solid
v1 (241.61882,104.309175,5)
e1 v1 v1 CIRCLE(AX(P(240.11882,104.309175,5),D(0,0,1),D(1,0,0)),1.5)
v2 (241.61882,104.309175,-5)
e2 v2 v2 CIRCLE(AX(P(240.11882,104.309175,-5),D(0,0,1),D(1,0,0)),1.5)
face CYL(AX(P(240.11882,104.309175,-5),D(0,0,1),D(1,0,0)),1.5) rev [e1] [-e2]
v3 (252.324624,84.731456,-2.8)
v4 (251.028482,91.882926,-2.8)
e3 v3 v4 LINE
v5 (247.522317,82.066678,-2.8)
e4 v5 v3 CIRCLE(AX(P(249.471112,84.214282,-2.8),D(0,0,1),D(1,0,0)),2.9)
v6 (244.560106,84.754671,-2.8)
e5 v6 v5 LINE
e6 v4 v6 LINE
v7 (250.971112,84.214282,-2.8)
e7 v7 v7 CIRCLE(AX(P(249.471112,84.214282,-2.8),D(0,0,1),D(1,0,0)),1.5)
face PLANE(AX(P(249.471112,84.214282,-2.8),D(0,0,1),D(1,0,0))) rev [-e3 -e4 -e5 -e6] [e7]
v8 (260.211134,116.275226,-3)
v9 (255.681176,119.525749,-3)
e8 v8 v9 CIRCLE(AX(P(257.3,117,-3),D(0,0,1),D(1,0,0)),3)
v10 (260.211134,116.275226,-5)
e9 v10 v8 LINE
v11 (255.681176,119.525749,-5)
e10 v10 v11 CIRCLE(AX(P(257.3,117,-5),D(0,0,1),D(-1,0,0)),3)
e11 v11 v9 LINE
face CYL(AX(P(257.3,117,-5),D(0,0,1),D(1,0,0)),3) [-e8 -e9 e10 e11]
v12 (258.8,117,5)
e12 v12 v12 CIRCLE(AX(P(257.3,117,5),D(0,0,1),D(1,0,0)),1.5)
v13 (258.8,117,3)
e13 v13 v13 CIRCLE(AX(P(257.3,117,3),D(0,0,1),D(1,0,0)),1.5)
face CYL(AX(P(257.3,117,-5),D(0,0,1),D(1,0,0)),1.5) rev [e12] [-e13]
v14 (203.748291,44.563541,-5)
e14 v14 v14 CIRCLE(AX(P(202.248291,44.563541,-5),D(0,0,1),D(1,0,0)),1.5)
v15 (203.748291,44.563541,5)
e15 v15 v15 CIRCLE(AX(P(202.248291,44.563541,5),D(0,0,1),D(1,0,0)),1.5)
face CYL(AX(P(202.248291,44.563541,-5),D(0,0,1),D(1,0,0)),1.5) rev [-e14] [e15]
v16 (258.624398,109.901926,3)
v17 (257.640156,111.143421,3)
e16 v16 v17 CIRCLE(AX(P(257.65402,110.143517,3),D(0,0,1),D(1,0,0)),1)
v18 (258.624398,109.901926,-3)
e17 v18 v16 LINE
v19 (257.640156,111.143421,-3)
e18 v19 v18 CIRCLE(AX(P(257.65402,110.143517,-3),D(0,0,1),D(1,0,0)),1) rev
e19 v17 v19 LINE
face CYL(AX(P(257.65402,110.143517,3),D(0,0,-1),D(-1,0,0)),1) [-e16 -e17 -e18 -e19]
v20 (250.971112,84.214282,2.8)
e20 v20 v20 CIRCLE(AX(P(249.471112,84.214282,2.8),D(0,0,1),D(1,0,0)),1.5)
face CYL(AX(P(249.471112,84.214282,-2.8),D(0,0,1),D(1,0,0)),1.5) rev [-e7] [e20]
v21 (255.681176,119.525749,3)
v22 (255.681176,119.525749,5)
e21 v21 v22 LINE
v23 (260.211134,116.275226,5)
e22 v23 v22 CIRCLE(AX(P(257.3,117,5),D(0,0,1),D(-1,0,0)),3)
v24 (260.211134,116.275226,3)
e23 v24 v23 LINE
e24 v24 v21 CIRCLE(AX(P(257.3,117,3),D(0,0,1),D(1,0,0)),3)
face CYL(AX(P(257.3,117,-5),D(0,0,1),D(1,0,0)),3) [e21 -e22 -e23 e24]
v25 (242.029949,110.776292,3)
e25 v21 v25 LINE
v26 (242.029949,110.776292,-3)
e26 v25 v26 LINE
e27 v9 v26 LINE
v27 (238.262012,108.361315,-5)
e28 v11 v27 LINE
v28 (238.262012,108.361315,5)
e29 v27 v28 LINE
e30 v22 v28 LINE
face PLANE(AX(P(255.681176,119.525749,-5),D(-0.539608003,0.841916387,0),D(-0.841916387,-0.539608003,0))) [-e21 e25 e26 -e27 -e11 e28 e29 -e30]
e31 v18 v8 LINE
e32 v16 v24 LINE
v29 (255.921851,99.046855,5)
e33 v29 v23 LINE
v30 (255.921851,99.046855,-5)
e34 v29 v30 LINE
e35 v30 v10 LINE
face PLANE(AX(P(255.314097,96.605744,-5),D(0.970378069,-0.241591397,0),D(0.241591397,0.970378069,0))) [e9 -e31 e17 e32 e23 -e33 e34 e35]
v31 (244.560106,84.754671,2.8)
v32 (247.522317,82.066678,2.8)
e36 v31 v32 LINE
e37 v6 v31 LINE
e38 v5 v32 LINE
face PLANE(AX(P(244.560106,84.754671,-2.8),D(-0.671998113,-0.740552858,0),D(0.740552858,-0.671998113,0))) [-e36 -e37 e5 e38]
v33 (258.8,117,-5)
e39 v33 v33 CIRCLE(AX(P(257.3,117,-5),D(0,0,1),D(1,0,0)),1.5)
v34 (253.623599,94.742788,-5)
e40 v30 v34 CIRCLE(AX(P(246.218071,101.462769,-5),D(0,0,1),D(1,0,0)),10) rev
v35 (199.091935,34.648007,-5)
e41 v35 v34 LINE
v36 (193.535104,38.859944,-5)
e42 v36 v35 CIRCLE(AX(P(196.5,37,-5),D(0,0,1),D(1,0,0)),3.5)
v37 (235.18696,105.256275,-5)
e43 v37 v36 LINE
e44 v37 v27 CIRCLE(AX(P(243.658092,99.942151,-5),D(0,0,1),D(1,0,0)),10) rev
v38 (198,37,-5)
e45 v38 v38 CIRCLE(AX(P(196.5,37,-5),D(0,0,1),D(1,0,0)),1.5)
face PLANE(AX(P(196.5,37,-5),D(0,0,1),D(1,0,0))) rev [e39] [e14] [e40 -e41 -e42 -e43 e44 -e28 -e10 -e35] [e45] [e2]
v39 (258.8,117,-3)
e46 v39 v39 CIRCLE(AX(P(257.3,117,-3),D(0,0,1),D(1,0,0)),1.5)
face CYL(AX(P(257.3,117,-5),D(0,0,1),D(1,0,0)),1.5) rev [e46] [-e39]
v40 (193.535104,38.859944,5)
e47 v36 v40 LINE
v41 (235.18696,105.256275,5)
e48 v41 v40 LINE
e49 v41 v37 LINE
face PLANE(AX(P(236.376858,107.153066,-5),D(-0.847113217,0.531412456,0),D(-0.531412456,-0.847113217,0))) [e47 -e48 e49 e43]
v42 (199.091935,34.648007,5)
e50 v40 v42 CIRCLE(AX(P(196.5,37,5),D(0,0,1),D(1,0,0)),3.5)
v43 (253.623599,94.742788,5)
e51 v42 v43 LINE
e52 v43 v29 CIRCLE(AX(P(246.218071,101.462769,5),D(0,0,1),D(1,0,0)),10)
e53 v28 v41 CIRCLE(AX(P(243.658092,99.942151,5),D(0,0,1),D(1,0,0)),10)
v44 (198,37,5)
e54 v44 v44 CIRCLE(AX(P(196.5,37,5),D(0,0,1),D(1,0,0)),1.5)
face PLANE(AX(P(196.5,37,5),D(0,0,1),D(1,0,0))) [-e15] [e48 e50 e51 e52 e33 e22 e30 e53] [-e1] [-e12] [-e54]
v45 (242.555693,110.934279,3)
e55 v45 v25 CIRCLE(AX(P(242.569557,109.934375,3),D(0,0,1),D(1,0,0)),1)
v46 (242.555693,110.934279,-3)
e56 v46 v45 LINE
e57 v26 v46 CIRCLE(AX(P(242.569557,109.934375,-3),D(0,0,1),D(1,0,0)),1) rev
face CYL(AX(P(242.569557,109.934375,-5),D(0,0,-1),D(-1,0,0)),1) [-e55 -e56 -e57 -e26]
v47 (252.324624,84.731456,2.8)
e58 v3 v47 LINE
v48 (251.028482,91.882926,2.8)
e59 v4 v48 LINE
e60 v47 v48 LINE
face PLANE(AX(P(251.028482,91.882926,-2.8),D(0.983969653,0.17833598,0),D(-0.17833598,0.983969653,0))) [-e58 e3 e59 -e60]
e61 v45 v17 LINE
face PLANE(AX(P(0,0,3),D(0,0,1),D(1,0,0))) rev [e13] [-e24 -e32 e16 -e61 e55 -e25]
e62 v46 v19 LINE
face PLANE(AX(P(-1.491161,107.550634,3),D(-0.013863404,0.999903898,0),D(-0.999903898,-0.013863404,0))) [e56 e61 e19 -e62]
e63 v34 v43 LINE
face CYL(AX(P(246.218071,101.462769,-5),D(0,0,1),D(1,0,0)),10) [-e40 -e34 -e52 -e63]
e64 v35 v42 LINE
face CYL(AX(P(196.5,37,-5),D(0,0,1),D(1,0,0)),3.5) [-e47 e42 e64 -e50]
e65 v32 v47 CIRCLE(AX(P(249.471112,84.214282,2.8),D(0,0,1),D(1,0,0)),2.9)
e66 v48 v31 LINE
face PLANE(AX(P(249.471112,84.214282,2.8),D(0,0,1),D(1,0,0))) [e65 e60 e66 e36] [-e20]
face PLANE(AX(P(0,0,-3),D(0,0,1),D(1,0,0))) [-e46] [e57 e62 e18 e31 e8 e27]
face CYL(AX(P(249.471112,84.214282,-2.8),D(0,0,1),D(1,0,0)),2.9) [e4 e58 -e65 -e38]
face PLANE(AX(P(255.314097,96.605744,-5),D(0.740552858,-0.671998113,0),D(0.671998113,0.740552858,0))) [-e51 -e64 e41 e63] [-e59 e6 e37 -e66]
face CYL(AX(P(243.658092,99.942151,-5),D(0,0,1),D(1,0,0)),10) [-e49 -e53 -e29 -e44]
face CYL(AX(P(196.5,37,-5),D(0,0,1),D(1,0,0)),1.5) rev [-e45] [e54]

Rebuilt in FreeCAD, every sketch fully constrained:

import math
import FreeCAD as App
import Part
import Sketcher
from FreeCAD import Vector
Q = App.Units.Quantity


def edges_at(feature, points):
    """Names of the edges that pass closest to the given points."""
    edges = feature.Shape.Edges
    near = lambda p: min(range(len(edges)), key=lambda i: edges[i].distToShape(Part.Vertex(*p))[0])
    return sorted({f"Edge{near(p) + 1}" for p in points})

doc = App.newDocument("Part")
body = doc.addObject("PartDesign::Body", "Body")

# Sketch on XY plane
sketch1 = body.newObject("Sketcher::SketchObject", "Sketch")
sketch1.AttachmentSupport = (doc.getObject("XY_Plane"), [""])
sketch1.MapMode = "FlatFace"
sketch1.addGeometry(Part.LineSegment(Vector(199.1, 34.6, 0), Vector(255.3, 96.6, 0)), False)
sketch1.addGeometry(Part.LineSegment(Vector(255.3, 96.6, 0), Vector(260.2, 116.3, 0)), False)
sketch1.addGeometry(Part.ArcOfCircle(Part.Circle(Vector(257.3, 117, 0), Vector(0, 0, 1), 3), math.radians(-14), math.radians(123)), False)
sketch1.addGeometry(Part.LineSegment(Vector(255.7, 119.5, 0), Vector(236.4, 107.2, 0)), False)
sketch1.addGeometry(Part.LineSegment(Vector(236.4, 107.2, 0), Vector(193.5, 38.9, 0)), False)
sketch1.addGeometry(Part.ArcOfCircle(Part.Circle(Vector(196.5, 37, 0), Vector(0, 0, 1), 3.5), math.radians(148), math.radians(318)), False)
sketch1.addGeometry(Part.Circle(Vector(196.5, 37, 0), Vector(0, 0, 1), 1.5), False)
sketch1.addGeometry(Part.Circle(Vector(202.2, 44.6, 0), Vector(0, 0, 1), 1.5), False)
sketch1.addGeometry(Part.Circle(Vector(257.3, 117, 0), Vector(0, 0, 1), 1.5), False)
sketch1.addGeometry(Part.Circle(Vector(240.1, 104.3, 0), Vector(0, 0, 1), 1.5), False)
sketch1.addConstraint(Sketcher.Constraint("Coincident", 0, 2, 1, 1))
sketch1.addConstraint(Sketcher.Constraint("Tangent", 1, 2, 2, 1))
sketch1.addConstraint(Sketcher.Constraint("Tangent", 2, 2, 3, 1))
sketch1.addConstraint(Sketcher.Constraint("Coincident", 3, 2, 4, 1))
sketch1.addConstraint(Sketcher.Constraint("Tangent", 4, 2, 5, 1))
sketch1.addConstraint(Sketcher.Constraint("Tangent", 5, 2, 0, 1))
sketch1.addConstraint(Sketcher.Constraint("Coincident", 6, 3, 5, 3))
sketch1.addConstraint(Sketcher.Constraint("Coincident", 8, 3, 2, 3))
sketch1.addConstraint(Sketcher.Constraint("Equal", 6, 7))
sketch1.addConstraint(Sketcher.Constraint("Equal", 7, 8))
sketch1.addConstraint(Sketcher.Constraint("Equal", 8, 9))
sketch1.addConstraint(Sketcher.Constraint("Diameter", 6, Q("3 mm")))
sketch1.addConstraint(Sketcher.Constraint("Radius", 2, Q("3 mm")))
sketch1.addConstraint(Sketcher.Constraint("Radius", 5, Q("3.5 mm")))
sketch1.addConstraint(Sketcher.Constraint("DistanceY", -1, 1, 2, 3, Q("117 mm")))
sketch1.addConstraint(Sketcher.Constraint("DistanceY", -1, 1, 5, 3, Q("37 mm")))
sketch1.addConstraint(Sketcher.Constraint("DistanceX", -1, 1, 2, 3, Q("257.3 mm")))
sketch1.addConstraint(Sketcher.Constraint("DistanceX", -1, 1, 5, 3, Q("196.5 mm")))
sketch1.addConstraint(Sketcher.Constraint("Distance", 3, Q("22.929021 mm")))
sketch1.addConstraint(Sketcher.Constraint("Distance", 4, Q("80.618648 mm")))
sketch1.addConstraint(Sketcher.Constraint("DistanceX", -1, 1, 7, 3, Q("202.248291 mm")))
sketch1.addConstraint(Sketcher.Constraint("DistanceY", -1, 1, 7, 3, Q("44.563541 mm")))
sketch1.addConstraint(Sketcher.Constraint("DistanceX", -1, 1, 9, 3, Q("240.11882 mm")))
sketch1.addConstraint(Sketcher.Constraint("DistanceY", 0, 2, 9, 3, Q("7.70343 mm")))
sketch1.addConstraint(Sketcher.Constraint("DistanceY", 0, 2, 1, 2, Q("19.669482 mm")))
sketch1.addConstraint(Sketcher.Constraint("DistanceX", 2, 2, 1, 2, Q("4.529958 mm")))
pad1 = body.newObject("PartDesign::Pad", "Pad")
pad1.Profile = sketch1
pad1.Type = "TwoLengths"
pad1.Length = 5
pad1.Length2 = 5

# Sketch on XY plane
sketch2 = body.newObject("Sketcher::SketchObject", "Sketch001")
sketch2.AttachmentSupport = (doc.getObject("XY_Plane"), [""])
sketch2.MapMode = "FlatFace"
sketch2.addGeometry(Part.LineSegment(Vector(255.7, 119.5, 0), Vector(242.3, 110.9, 0)), False)
sketch2.addGeometry(Part.LineSegment(Vector(242.3, 110.9, 0), Vector(258.9, 111.2, 0)), False)
sketch2.addGeometry(Part.LineSegment(Vector(258.9, 111.2, 0), Vector(260.2, 116.3, 0)), False)
sketch2.addGeometry(Part.ArcOfCircle(Part.Circle(Vector(257.3, 117, 0), Vector(0, 0, 1), 3), math.radians(-14), math.radians(123)), False)
sketch2.addGeometry(Part.Circle(Vector(257.3, 117, 0), Vector(0, 0, 1), 1.5), False)
sketch2.addConstraint(Sketcher.Constraint("Coincident", 0, 2, 1, 1))
sketch2.addConstraint(Sketcher.Constraint("Coincident", 1, 2, 2, 1))
sketch2.addConstraint(Sketcher.Constraint("Tangent", 2, 2, 3, 1))
sketch2.addConstraint(Sketcher.Constraint("Tangent", 3, 2, 0, 1))
sketch2.addConstraint(Sketcher.Constraint("Coincident", 4, 3, 3, 3))
sketch2.addConstraint(Sketcher.Constraint("Diameter", 4, Q("3 mm")))
sketch2.addConstraint(Sketcher.Constraint("Radius", 3, Q("3 mm")))
sketch2.addConstraint(Sketcher.Constraint("DistanceY", -1, 1, 3, 3, Q("117 mm")))
sketch2.addConstraint(Sketcher.Constraint("DistanceX", -1, 1, 3, 3, Q("257.3 mm")))
sketch2.addConstraint(Sketcher.Constraint("Distance", 0, Q("15.929021 mm")))
sketch2.addConstraint(Sketcher.Constraint("DistanceY", -1, 1, 3, 2, Q("119.525749 mm")))
sketch2.addConstraint(Sketcher.Constraint("DistanceY", 1, 2, 2, 2, Q("5.113811 mm")))
sketch2.addConstraint(Sketcher.Constraint("DistanceX", 0, 2, 2, 2, Q("17.940862 mm")))
pocket1 = body.newObject("PartDesign::Pocket", "Pocket")
pocket1.Profile = sketch2
pocket1.Type = "TwoLengths"
pocket1.Length = 3
pocket1.Length2 = 3
pocket1.Reversed = True

# Sketch on XY plane
sketch3 = body.newObject("Sketcher::SketchObject", "Sketch002")
sketch3.AttachmentSupport = (doc.getObject("XY_Plane"), [""])
sketch3.MapMode = "FlatFace"
sketch3.addGeometry(Part.LineSegment(Vector(244.6, 84.8, 0), Vector(247.5, 82.1, 0)), False)
sketch3.addGeometry(Part.ArcOfCircle(Part.Circle(Vector(249.5, 84.2, 0), Vector(0, 0, 1), 2.9), math.radians(-132), math.radians(10)), False)
sketch3.addGeometry(Part.LineSegment(Vector(252.3, 84.7, 0), Vector(251, 91.9, 0)), False)
sketch3.addGeometry(Part.LineSegment(Vector(251, 91.9, 0), Vector(244.6, 84.8, 0)), False)
sketch3.addGeometry(Part.Circle(Vector(249.5, 84.2, 0), Vector(0, 0, 1), 1.5), False)
sketch3.addConstraint(Sketcher.Constraint("Tangent", 0, 2, 1, 1))
sketch3.addConstraint(Sketcher.Constraint("Tangent", 1, 2, 2, 1))
sketch3.addConstraint(Sketcher.Constraint("Coincident", 2, 2, 3, 1))
sketch3.addConstraint(Sketcher.Constraint("Coincident", 3, 2, 0, 1))
sketch3.addConstraint(Sketcher.Constraint("Coincident", 4, 3, 1, 3))
sketch3.addConstraint(Sketcher.Constraint("Perpendicular", 0, 3))
sketch3.addConstraint(Sketcher.Constraint("Diameter", 4, Q("3 mm")))
sketch3.addConstraint(Sketcher.Constraint("Radius", 1, Q("2.9 mm")))
sketch3.addConstraint(Sketcher.Constraint("Distance", 0, Q("4 mm")))
sketch3.addConstraint(Sketcher.Constraint("Distance", 2, Q("7.267979 mm")))
sketch3.addConstraint(Sketcher.Constraint("DistanceX", -1, 1, 1, 3, Q("249.471112 mm")))
sketch3.addConstraint(Sketcher.Constraint("DistanceY", -1, 1, 1, 3, Q("84.214282 mm")))
sketch3.addConstraint(Sketcher.Constraint("DistanceY", -1, 1, 0, 2, Q("82.066678 mm")))
pad2 = body.newObject("PartDesign::Pad", "Pad001")
pad2.Profile = sketch3
pad2.Type = "TwoLengths"
pad2.Length = 2.8
pad2.Length2 = 2.8
doc.recompute()

fillet = body.newObject("PartDesign::Fillet", "Fillet")
fillet.Base = (pad2, edges_at(pad2, [(236.377, 107.153, 0), (255.314, 96.606, 0)]))
fillet.Radius = 10
doc.recompute()

fillet2 = body.newObject("PartDesign::Fillet", "Fillet001")
fillet2.Base = (fillet, edges_at(fillet, [(258.938, 111.161, 0), (242.27, 110.93, 0)]))
fillet2.Radius = 1

doc.recompute()
